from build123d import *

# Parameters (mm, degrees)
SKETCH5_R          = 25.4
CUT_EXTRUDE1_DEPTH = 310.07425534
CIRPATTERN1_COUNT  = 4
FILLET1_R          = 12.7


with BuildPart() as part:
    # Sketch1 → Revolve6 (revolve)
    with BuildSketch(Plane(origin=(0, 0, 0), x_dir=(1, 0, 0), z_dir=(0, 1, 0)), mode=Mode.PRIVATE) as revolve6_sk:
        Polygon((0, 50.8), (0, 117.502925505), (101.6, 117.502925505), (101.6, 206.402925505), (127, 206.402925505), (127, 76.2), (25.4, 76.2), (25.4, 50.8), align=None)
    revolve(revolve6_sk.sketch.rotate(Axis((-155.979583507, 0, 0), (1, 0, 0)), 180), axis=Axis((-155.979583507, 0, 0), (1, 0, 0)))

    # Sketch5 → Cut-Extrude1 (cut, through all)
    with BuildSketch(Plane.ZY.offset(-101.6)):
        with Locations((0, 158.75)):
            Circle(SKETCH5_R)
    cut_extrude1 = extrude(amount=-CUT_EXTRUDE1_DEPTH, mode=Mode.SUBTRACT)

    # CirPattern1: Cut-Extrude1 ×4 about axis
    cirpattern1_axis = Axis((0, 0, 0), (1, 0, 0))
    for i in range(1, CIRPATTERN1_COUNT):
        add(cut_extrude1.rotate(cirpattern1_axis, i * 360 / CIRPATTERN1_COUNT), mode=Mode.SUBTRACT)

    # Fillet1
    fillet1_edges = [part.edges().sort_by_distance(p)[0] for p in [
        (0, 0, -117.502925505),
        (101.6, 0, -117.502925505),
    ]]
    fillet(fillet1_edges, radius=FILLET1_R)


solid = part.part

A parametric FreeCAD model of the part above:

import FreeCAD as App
import Part
import Sketcher

V = App.Vector
Q = App.Units.Quantity


def edges_at(feature, points):
    """Names of the edges that pass closest to the given points."""
    edges = feature.Shape.Edges
    near = lambda p: min(range(len(edges)), key=lambda i: edges[i].distToShape(Part.Vertex(*p))[0])
    return sorted({f"Edge{near(p) + 1}" for p in points})

doc = App.newDocument("Part")
body = doc.addObject("PartDesign::Body", "Body")

sketch1 = doc.addObject("Sketcher::SketchObject", "Sketch")
body.addObject(sketch1)
sketch1.AttachmentSupport = (doc.XZ_Plane, [""])
sketch1.MapMode = "FlatFace"
sketch1.addGeometry(Part.LineSegment(V(0, -118, 0), V(0, -51, 0)), False)
sketch1.addGeometry(Part.LineSegment(V(0, -51, 0), V(25, -51, 0)), False)
sketch1.addGeometry(Part.LineSegment(V(25, -51, 0), V(25, -76, 0)), False)
sketch1.addGeometry(Part.LineSegment(V(25, -76, 0), V(127, -76, 0)), False)
sketch1.addGeometry(Part.LineSegment(V(127, -76, 0), V(127, -206, 0)), False)
sketch1.addGeometry(Part.LineSegment(V(127, -206, 0), V(102, -206, 0)), False)
sketch1.addGeometry(Part.LineSegment(V(102, -206, 0), V(102, -118, 0)), False)
sketch1.addGeometry(Part.LineSegment(V(102, -118, 0), V(0, -118, 0)), False)
sketch1.addConstraint(Sketcher.Constraint("Coincident", 0, 2, 1, 1))
sketch1.addConstraint(Sketcher.Constraint("Coincident", 1, 2, 2, 1))
sketch1.addConstraint(Sketcher.Constraint("Coincident", 2, 2, 3, 1))
sketch1.addConstraint(Sketcher.Constraint("Coincident", 3, 2, 4, 1))
sketch1.addConstraint(Sketcher.Constraint("Coincident", 4, 2, 5, 1))
sketch1.addConstraint(Sketcher.Constraint("Coincident", 5, 2, 6, 1))
sketch1.addConstraint(Sketcher.Constraint("Coincident", 6, 2, 7, 1))
sketch1.addConstraint(Sketcher.Constraint("Coincident", 7, 2, 0, 1))
sketch1.addConstraint(Sketcher.Constraint("Vertical", 0))
sketch1.addConstraint(Sketcher.Constraint("Horizontal", 1))
sketch1.addConstraint(Sketcher.Constraint("Vertical", 2))
sketch1.addConstraint(Sketcher.Constraint("Horizontal", 3))
sketch1.addConstraint(Sketcher.Constraint("Vertical", 4))
sketch1.addConstraint(Sketcher.Constraint("Horizontal", 5))
sketch1.addConstraint(Sketcher.Constraint("Vertical", 6))
sketch1.addConstraint(Sketcher.Constraint("Horizontal", 7))
sketch1.addConstraint(Sketcher.Constraint("PointOnObject", 0, 2, -2))
sketch1.addConstraint(Sketcher.Constraint("Equal", 1, 5))
sketch1.addConstraint(Sketcher.Constraint("Equal", 5, 2))
sketch1.addConstraint(Sketcher.Constraint("DistanceX", 1, 1, 1, 2, Q("1 in")))
sketch1.addConstraint(Sketcher.Constraint("DistanceX", 3, 1, 3, 2, Q("4 in")))
sketch1.addConstraint(Sketcher.Constraint("DistanceY", 6, 1, 6, 2, Q("3.5 in")))
sketch1.addConstraint(Sketcher.Constraint("DistanceY", 0, 2, -1, 1, Q("2 in")))
sketch1.addConstraint(Sketcher.Constraint("DistanceY", 0, 1, 0, 2, Q("66.702926 mm")))
revolution = doc.addObject("PartDesign::Revolution", "Revolution")
body.addObject(revolution)
revolution.Profile = sketch1
revolution.ReferenceAxis = (sketch1, ["H_Axis"])
revolution.Angle = 360

sketch2 = doc.addObject("Sketcher::SketchObject", "Sketch001")
body.addObject(sketch2)
sketch2.AttachmentSupport = (doc.YZ_Plane, [""])
sketch2.MapMode = "FlatFace"
sketch2.AttachmentOffset = App.Placement(V(0, 0, 4 * 25.4), App.Rotation())
sketch2.addGeometry(Part.Circle(V(159, 0, 0), V(0, 0, 1), 25), False)
sketch2.addConstraint(Sketcher.Constraint("PointOnObject", 0, 3, -1))
sketch2.addConstraint(Sketcher.Constraint("Diameter", 0, Q("2 in")))
sketch2.addConstraint(Sketcher.Constraint("DistanceX", -1, 1, 0, 3, Q("6.25 in")))
pocket1 = doc.addObject("PartDesign::Pocket", "Pocket")
body.addObject(pocket1)
pocket1.Profile = sketch2
pocket1.Type = "ThroughAll"
pocket1.Reversed = True
doc.recompute()

polarpattern = doc.addObject("PartDesign::PolarPattern", "PolarPattern")
body.addObject(polarpattern)
polarpattern.Originals = [pocket1]
polarpattern.Axis = (doc.X_Axis, [""])
polarpattern.Angle = 360
polarpattern.Occurrences = 4
body.Tip = polarpattern
doc.recompute()

fillet = doc.addObject("PartDesign::Fillet", "Fillet")
body.addObject(fillet)
fillet.Base = (polarpattern, edges_at(polarpattern, [(0, 0, -117.503), (101.6, 0, -117.503)]))
fillet.Radius = Q("0.5 in")

doc.recompute()
